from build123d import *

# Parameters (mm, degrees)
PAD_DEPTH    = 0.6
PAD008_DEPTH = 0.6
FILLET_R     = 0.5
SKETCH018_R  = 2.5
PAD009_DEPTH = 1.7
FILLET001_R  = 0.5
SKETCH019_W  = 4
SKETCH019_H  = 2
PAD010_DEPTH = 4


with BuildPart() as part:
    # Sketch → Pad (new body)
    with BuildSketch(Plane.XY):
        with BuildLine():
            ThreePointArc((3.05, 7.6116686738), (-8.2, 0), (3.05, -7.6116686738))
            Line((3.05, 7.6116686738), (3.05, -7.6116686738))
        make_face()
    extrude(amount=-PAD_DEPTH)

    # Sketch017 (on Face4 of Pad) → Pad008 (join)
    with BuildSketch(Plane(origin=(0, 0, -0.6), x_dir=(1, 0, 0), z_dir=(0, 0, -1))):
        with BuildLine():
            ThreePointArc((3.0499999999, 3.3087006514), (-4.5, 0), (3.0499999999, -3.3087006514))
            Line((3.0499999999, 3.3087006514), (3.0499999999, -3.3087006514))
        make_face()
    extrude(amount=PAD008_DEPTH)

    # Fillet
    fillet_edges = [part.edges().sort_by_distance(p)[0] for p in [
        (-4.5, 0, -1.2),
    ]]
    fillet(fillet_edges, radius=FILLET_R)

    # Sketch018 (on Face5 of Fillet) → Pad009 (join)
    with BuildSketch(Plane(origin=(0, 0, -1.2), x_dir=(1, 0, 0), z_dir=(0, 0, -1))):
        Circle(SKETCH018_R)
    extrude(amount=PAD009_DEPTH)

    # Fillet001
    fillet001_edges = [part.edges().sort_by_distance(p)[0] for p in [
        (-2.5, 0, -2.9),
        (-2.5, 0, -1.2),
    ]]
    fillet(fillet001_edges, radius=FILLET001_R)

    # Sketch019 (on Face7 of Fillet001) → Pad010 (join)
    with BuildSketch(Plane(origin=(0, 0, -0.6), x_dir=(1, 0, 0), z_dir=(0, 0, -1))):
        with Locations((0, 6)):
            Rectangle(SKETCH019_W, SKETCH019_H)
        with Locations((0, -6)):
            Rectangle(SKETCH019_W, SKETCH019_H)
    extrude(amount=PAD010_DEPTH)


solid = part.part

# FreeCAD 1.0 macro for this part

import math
import FreeCAD as App
import Part
import Sketcher
from FreeCAD import Vector
Q = App.Units.Quantity


def edges_at(feature, points):
    """Names of the edges that pass closest to the given points."""
    edges = feature.Shape.Edges
    near = lambda p: min(range(len(edges)), key=lambda i: edges[i].distToShape(Part.Vertex(*p))[0])
    return sorted({f"Edge{near(p) + 1}" for p in points})

doc = App.newDocument("Part")
body = doc.addObject("PartDesign::Body", "Body")

# Sketch on XY plane
sketch1 = body.newObject("Sketcher::SketchObject", "Sketch")
sketch1.AttachmentSupport = (doc.getObject("XY_Plane"), [""])
sketch1.MapMode = "FlatFace"
sketch1.addGeometry(Part.ArcOfCircle(Part.Circle(Vector(0, 0, 0), Vector(0, 0, 1), 8), math.radians(68), math.radians(292)), False)
sketch1.addGeometry(Part.LineSegment(Vector(3, -8, 0), Vector(3, 8, 0)), False)
sketch1.addConstraint(Sketcher.Constraint("Coincident", 0, 1, 1, 2))
sketch1.addConstraint(Sketcher.Constraint("Coincident", 1, 1, 0, 2))
sketch1.addConstraint(Sketcher.Constraint("Vertical", 1))
sketch1.addConstraint(Sketcher.Constraint("Coincident", 0, 3, -1, 1))
sketch1.addConstraint(Sketcher.Constraint("Radius", 0, Q("8.2 mm")))
sketch1.addConstraint(Sketcher.Constraint("DistanceX", -1, 1, 0, 1, Q("3.05 mm")))
pad1 = body.newObject("PartDesign::Pad", "Pad")
pad1.Profile = sketch1
pad1.Length = 0.6
pad1.Reversed = True

# Sketch on XY plane
sketch2 = body.newObject("Sketcher::SketchObject", "Sketch001")
sketch2.AttachmentSupport = (doc.getObject("XY_Plane"), [""])
sketch2.MapMode = "FlatFace"
sketch2.AttachmentOffset = App.Placement(Vector(0, 0, -0.6), App.Rotation())
sketch2.addGeometry(Part.ArcOfCircle(Part.Circle(Vector(0, 0, 0), Vector(0, 0, 1), 4.5), math.radians(47), math.radians(313)), False)
sketch2.addGeometry(Part.LineSegment(Vector(3, 3.3, 0), Vector(3, -3.3, 0)), False)
sketch2.addConstraint(Sketcher.Constraint("Coincident", 0, 1, 1, 1))
sketch2.addConstraint(Sketcher.Constraint("Coincident", 1, 2, 0, 2))
sketch2.addConstraint(Sketcher.Constraint("Vertical", 1))
sketch2.addConstraint(Sketcher.Constraint("Coincident", 0, 3, -1, 1))
sketch2.addConstraint(Sketcher.Constraint("Radius", 0, Q("4.5 mm")))
sketch2.addConstraint(Sketcher.Constraint("DistanceX", -1, 1, 0, 1, Q("3.05 mm")))
pad2 = body.newObject("PartDesign::Pad", "Pad001")
pad2.Profile = sketch2
pad2.Length = 0.6
pad2.Reversed = True
doc.recompute()

fillet = body.newObject("PartDesign::Fillet", "Fillet")
fillet.Base = (pad2, edges_at(pad2, [(-4.5, 0, -1.2)]))
fillet.Radius = 0.5

# Sketch on XY plane
sketch3 = body.newObject("Sketcher::SketchObject", "Sketch002")
sketch3.AttachmentSupport = (doc.getObject("XY_Plane"), [""])
sketch3.MapMode = "FlatFace"
sketch3.AttachmentOffset = App.Placement(Vector(0, 0, -1.2), App.Rotation())
sketch3.addGeometry(Part.Circle(Vector(0, 0, 0), Vector(0, 0, 1), 2.5), False)
sketch3.addConstraint(Sketcher.Constraint("Coincident", 0, 3, -1, 1))
sketch3.addConstraint(Sketcher.Constraint("Diameter", 0, Q("5 mm")))
pad3 = body.newObject("PartDesign::Pad", "Pad002")
pad3.Profile = sketch3
pad3.Length = 1.7
pad3.Reversed = True
doc.recompute()

fillet2 = body.newObject("PartDesign::Fillet", "Fillet001")
fillet2.Base = (pad3, edges_at(pad3, [(-2.5, 0, -2.9), (-2.5, 0, -1.2)]))
fillet2.Radius = 0.5

# Sketch on XY plane
sketch4 = body.newObject("Sketcher::SketchObject", "Sketch003")
sketch4.AttachmentSupport = (doc.getObject("XY_Plane"), [""])
sketch4.MapMode = "FlatFace"
sketch4.AttachmentOffset = App.Placement(Vector(0, 0, -0.6), App.Rotation())
sketch4.addGeometry(Part.LineSegment(Vector(-2, -7, 0), Vector(-2, -5, 0)), False)
sketch4.addGeometry(Part.LineSegment(Vector(-2, -5, 0), Vector(2, -5, 0)), False)
sketch4.addGeometry(Part.LineSegment(Vector(2, -5, 0), Vector(2, -7, 0)), False)
sketch4.addGeometry(Part.LineSegment(Vector(2, -7, 0), Vector(-2, -7, 0)), False)
sketch4.addGeometry(Part.LineSegment(Vector(-2, 5, 0), Vector(-2, 7, 0)), False)
sketch4.addGeometry(Part.LineSegment(Vector(-2, 7, 0), Vector(2, 7, 0)), False)
sketch4.addGeometry(Part.LineSegment(Vector(2, 7, 0), Vector(2, 5, 0)), False)
sketch4.addGeometry(Part.LineSegment(Vector(2, 5, 0), Vector(-2, 5, 0)), False)
sketch4.addConstraint(Sketcher.Constraint("Coincident", 0, 2, 1, 1))
sketch4.addConstraint(Sketcher.Constraint("Coincident", 1, 2, 2, 1))
sketch4.addConstraint(Sketcher.Constraint("Coincident", 2, 2, 3, 1))
sketch4.addConstraint(Sketcher.Constraint("Coincident", 3, 2, 0, 1))
sketch4.addConstraint(Sketcher.Constraint("Coincident", 4, 2, 5, 1))
sketch4.addConstraint(Sketcher.Constraint("Coincident", 5, 2, 6, 1))
sketch4.addConstraint(Sketcher.Constraint("Coincident", 6, 2, 7, 1))
sketch4.addConstraint(Sketcher.Constraint("Coincident", 7, 2, 4, 1))
sketch4.addConstraint(Sketcher.Constraint("Vertical", 0))
sketch4.addConstraint(Sketcher.Constraint("Horizontal", 1))
sketch4.addConstraint(Sketcher.Constraint("Vertical", 2))
sketch4.addConstraint(Sketcher.Constraint("Horizontal", 3))
sketch4.addConstraint(Sketcher.Constraint("Vertical", 4))
sketch4.addConstraint(Sketcher.Constraint("Horizontal", 5))
sketch4.addConstraint(Sketcher.Constraint("Vertical", 6))
sketch4.addConstraint(Sketcher.Constraint("Horizontal", 7))
sketch4.addConstraint(Sketcher.Constraint("Symmetric", 2, 2, 4, 2, -1, 1))
sketch4.addConstraint(Sketcher.Constraint("Symmetric", 0, 2, 6, 2, -1, 1))
sketch4.addConstraint(Sketcher.Constraint("Vertical", 3, 2, 4, 2))
sketch4.addConstraint(Sketcher.Constraint("DistanceX", 1, 1, 1, 2, Q("4 mm")))
sketch4.addConstraint(Sketcher.Constraint("DistanceY", 0, 1, 0, 2, Q("2 mm")))
sketch4.addConstraint(Sketcher.Constraint("DistanceY", 0, 2, -1, 1, Q("5 mm")))
pad4 = body.newObject("PartDesign::Pad", "Pad003")
pad4.Profile = sketch4
pad4.Length = 4
pad4.Reversed = True

doc.recompute()
